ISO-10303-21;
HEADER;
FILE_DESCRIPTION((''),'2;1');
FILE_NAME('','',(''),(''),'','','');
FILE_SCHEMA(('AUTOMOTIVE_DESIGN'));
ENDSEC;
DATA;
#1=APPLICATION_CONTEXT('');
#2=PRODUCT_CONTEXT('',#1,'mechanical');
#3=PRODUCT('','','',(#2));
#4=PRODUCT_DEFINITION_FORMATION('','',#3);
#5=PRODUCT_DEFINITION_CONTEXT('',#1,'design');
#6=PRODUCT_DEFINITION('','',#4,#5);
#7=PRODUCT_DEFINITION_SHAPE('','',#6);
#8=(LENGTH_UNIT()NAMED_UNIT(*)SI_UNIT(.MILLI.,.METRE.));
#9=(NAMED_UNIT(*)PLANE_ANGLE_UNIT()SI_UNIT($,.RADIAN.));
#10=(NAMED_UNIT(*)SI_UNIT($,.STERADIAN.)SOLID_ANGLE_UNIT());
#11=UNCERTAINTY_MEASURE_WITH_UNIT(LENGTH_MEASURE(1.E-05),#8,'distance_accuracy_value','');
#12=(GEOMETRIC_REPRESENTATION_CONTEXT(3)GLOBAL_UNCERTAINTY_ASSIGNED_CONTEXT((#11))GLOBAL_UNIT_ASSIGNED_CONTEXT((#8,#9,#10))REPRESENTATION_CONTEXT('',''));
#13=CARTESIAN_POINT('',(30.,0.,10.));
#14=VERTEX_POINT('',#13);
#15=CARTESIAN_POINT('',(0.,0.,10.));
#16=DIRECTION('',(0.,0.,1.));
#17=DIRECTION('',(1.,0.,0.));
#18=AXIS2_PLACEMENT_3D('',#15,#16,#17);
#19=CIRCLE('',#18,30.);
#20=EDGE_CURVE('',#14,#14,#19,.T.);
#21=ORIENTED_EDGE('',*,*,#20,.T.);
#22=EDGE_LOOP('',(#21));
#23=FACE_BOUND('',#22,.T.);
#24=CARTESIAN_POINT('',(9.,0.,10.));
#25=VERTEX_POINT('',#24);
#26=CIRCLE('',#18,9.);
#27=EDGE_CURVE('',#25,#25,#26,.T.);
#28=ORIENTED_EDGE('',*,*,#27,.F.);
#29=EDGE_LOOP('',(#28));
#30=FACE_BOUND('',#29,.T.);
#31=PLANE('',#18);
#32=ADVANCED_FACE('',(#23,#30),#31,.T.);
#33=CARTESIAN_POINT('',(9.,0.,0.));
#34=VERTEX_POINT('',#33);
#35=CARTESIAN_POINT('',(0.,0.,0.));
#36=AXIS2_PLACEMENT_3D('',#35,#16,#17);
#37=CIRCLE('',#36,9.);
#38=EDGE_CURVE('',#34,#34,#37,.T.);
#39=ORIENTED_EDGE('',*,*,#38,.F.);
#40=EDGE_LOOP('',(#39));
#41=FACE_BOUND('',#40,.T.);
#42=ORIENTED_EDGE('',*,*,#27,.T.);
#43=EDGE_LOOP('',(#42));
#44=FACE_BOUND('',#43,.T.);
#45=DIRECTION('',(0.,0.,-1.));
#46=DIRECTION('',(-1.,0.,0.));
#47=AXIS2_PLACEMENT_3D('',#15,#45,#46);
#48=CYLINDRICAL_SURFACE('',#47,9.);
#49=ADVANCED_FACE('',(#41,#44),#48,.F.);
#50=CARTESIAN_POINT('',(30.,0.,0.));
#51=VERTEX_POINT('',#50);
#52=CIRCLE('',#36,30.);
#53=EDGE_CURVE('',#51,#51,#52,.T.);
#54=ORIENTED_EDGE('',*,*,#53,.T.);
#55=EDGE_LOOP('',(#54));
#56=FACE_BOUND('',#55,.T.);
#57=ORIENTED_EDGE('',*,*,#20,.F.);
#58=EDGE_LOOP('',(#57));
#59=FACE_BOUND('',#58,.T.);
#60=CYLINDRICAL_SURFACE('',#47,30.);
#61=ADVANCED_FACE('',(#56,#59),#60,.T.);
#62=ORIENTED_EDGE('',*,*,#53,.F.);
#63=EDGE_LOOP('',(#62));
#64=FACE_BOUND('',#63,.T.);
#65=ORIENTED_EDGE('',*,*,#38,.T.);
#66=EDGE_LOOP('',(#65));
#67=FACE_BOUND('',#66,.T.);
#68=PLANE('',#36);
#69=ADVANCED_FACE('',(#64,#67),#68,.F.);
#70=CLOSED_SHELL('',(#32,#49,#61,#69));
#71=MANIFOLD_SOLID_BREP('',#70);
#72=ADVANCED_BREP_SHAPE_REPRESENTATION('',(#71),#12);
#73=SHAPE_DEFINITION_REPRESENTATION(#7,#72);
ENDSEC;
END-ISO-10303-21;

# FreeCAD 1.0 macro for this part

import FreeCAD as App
import Part
import Sketcher

V = App.Vector
Q = App.Units.Quantity

doc = App.newDocument("Part")
body = doc.addObject("PartDesign::Body", "Body")

sketch1 = doc.addObject("Sketcher::SketchObject", "Sketch")
body.addObject(sketch1)
sketch1.AttachmentSupport = (doc.XY_Plane, [""])
sketch1.MapMode = "FlatFace"
sketch1.addGeometry(Part.Circle(V(0, 0, 0), V(0, 0, 1), 30), False)
sketch1.addGeometry(Part.Circle(V(0, 0, 0), V(0, 0, 1), 9), False)
sketch1.addConstraint(Sketcher.Constraint("Coincident", 0, 3, -1, 1))
sketch1.addConstraint(Sketcher.Constraint("Coincident", 1, 3, -1, 1))
sketch1.addConstraint(Sketcher.Constraint("Diameter", 0, Q("60 mm")))
sketch1.addConstraint(Sketcher.Constraint("Diameter", 1, Q("18 mm")))
pad1 = doc.addObject("PartDesign::Pad", "Pad")
body.addObject(pad1)
pad1.Profile = sketch1
pad1.Length = 10

doc.recompute()
